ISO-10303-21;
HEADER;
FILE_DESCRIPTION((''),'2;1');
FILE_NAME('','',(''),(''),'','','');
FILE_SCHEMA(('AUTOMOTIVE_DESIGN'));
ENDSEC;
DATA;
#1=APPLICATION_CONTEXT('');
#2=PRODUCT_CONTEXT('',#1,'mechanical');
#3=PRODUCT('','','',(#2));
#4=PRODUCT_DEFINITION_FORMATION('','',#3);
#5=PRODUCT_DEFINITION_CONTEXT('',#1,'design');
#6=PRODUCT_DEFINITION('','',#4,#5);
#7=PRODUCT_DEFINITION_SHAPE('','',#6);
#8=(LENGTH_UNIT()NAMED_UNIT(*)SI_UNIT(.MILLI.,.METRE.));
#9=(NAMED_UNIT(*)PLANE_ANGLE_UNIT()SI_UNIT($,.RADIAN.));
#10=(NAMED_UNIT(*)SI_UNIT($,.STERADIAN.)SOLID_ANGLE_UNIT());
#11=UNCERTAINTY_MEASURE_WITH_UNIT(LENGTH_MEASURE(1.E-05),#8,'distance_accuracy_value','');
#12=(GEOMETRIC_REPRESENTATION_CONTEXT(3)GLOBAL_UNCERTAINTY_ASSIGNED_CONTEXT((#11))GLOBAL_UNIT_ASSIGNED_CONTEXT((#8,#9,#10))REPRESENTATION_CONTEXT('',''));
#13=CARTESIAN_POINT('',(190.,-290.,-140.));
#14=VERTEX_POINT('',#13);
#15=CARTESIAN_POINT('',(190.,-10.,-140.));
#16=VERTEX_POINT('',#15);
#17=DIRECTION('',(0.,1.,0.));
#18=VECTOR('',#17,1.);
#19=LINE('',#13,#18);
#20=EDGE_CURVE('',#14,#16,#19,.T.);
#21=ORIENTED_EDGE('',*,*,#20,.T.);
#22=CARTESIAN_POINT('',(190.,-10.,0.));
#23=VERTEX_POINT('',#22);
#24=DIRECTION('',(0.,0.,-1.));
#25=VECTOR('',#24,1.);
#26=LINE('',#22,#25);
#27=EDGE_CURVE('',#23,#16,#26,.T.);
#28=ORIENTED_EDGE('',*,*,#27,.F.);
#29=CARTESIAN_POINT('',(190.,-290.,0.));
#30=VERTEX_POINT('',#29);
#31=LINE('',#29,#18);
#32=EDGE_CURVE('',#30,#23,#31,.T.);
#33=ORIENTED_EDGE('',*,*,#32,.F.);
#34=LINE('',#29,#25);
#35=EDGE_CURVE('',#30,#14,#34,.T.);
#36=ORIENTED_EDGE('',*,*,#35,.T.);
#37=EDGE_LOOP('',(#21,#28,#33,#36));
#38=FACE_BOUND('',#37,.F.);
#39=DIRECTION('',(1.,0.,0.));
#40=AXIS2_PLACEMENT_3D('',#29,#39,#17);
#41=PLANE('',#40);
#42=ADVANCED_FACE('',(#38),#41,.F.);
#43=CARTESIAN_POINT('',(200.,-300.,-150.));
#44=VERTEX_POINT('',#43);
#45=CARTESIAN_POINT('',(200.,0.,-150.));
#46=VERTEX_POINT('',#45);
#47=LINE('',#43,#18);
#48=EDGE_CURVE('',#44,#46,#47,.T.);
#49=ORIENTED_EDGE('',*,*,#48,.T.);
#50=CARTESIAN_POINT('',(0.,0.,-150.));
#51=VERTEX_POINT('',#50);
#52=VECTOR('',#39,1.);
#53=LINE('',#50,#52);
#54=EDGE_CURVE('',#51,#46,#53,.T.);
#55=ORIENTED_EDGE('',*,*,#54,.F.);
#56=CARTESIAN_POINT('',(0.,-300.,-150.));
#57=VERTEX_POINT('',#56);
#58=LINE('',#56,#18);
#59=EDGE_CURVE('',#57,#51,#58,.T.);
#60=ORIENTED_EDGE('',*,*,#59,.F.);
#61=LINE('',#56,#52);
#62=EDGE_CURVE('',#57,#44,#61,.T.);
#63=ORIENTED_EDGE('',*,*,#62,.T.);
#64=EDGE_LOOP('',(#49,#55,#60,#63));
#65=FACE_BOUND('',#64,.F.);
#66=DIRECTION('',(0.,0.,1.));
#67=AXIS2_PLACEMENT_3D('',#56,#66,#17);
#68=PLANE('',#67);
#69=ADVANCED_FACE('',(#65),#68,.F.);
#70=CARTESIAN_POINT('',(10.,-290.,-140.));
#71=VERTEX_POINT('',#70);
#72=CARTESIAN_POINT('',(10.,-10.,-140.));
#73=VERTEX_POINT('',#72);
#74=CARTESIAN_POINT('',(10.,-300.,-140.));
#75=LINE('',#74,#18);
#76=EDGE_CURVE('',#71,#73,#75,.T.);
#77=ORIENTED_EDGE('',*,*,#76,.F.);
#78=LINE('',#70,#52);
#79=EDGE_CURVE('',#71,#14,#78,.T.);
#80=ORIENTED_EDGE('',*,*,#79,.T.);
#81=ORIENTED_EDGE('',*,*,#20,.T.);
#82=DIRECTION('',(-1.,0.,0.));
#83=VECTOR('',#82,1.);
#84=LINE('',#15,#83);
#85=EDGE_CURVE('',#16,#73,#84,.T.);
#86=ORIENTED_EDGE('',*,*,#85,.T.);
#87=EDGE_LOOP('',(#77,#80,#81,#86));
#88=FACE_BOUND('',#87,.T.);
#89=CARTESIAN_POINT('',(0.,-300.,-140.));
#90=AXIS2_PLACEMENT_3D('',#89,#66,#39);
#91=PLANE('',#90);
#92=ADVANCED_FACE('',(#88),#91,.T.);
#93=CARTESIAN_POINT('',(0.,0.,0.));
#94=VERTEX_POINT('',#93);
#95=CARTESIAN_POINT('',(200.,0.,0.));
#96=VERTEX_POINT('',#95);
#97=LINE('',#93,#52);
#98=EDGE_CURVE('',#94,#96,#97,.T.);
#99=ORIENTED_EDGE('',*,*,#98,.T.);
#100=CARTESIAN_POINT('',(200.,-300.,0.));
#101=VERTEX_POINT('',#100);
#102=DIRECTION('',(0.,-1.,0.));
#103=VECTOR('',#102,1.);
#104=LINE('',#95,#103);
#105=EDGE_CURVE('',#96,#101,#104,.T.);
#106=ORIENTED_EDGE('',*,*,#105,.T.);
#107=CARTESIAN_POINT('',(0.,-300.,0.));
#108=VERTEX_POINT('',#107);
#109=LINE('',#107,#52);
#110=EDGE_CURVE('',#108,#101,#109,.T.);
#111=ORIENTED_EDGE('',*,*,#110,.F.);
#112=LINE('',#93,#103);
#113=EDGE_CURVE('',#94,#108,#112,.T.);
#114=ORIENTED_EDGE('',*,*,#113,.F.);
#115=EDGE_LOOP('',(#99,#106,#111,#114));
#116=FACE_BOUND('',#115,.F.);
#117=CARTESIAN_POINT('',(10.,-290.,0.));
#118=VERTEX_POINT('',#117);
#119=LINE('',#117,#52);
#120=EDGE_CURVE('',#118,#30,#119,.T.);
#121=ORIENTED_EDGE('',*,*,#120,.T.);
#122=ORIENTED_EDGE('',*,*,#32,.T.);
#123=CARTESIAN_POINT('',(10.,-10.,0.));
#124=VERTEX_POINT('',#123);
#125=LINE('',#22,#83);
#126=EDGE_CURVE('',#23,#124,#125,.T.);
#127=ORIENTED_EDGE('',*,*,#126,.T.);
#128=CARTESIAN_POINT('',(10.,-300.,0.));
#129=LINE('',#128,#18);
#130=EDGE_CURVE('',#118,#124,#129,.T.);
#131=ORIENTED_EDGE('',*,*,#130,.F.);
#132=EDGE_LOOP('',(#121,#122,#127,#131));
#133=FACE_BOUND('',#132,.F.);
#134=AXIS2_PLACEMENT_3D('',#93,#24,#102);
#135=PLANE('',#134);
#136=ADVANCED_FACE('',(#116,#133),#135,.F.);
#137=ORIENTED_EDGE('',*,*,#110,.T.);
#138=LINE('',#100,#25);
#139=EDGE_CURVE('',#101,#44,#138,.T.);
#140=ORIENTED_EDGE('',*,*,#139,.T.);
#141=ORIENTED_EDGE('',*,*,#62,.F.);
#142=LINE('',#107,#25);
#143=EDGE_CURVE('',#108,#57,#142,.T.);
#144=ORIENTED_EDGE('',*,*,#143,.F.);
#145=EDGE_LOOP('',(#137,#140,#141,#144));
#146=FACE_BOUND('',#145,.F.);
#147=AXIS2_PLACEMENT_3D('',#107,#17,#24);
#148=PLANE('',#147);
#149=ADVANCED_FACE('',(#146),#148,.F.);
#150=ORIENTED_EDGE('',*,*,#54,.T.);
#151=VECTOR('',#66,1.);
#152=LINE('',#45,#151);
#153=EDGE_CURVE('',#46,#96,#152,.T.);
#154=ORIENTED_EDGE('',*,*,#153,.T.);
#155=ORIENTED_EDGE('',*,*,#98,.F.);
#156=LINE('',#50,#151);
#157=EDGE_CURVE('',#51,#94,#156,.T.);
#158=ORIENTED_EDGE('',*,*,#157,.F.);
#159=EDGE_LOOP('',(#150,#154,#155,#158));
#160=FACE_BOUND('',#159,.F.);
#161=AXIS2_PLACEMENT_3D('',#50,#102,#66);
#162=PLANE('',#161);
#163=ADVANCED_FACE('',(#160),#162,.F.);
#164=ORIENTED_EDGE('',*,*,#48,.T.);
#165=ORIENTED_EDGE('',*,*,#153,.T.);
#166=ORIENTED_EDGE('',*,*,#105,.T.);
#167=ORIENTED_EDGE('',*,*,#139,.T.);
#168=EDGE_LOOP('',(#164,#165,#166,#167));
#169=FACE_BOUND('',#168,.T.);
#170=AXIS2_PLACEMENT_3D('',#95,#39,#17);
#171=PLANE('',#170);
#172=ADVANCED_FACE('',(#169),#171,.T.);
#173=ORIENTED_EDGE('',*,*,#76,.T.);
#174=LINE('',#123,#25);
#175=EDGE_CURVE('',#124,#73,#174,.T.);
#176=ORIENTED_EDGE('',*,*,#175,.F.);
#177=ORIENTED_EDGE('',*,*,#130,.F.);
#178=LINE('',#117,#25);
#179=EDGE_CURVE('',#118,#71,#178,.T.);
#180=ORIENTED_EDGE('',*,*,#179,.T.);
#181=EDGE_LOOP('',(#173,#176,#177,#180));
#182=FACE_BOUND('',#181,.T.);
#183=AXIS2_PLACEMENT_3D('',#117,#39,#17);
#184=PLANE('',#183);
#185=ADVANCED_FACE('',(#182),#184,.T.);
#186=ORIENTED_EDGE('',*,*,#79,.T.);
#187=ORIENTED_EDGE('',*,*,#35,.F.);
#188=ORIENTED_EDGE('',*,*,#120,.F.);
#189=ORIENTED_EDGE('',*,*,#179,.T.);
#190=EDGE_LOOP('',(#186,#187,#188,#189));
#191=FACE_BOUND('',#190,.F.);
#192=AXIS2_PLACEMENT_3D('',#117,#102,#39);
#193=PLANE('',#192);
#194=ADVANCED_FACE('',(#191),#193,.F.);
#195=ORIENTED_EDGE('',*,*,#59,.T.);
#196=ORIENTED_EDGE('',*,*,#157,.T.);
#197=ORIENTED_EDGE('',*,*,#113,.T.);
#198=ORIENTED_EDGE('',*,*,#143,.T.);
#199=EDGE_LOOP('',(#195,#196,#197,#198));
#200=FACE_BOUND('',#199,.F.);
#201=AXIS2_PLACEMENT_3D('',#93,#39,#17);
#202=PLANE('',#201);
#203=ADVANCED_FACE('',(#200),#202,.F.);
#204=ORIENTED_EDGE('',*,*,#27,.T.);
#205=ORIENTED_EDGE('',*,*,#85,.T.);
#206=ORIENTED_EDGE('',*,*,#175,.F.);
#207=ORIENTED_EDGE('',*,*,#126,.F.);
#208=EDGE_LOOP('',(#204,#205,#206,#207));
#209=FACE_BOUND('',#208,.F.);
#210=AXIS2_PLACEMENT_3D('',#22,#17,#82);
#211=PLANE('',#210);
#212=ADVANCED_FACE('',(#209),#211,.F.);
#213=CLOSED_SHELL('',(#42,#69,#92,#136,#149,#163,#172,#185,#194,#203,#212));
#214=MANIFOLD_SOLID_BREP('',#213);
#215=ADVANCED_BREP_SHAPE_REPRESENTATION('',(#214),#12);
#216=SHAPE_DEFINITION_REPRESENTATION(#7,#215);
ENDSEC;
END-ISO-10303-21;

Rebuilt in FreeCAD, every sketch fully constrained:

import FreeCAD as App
import Part
import Sketcher
Q = App.Units.Quantity


def add_polygon(sketch, points):
    """Adds a closed chain of lines whose ends are joined by coincident constraints."""
    first, n = sketch.GeometryCount, len(points)
    for a, b in zip(points, points[1:] + points[:1]):
        sketch.addGeometry(Part.LineSegment(App.Vector(*a, 0), App.Vector(*b, 0)), False)
    for i in range(n):
        sketch.addConstraint(Sketcher.Constraint("Coincident", first + i, 2, first + (i + 1) % n, 1))

doc = App.newDocument("Part")
body = doc.addObject("PartDesign::Body", "Body")

# Sketch on YZ plane
sketch1 = body.newObject("Sketcher::SketchObject", "Sketch")
sketch1.AttachmentSupport = (doc.getObject("YZ_Plane"), [""])
sketch1.MapMode = "FlatFace"
add_polygon(sketch1, [(0, -150), (0, 0), (-300, 0), (-300, -150)])  # lines 0-3
sketch1.addConstraint([
    Sketcher.Constraint("Vertical", 0),
    Sketcher.Constraint("Horizontal", 1),
    Sketcher.Constraint("Vertical", 2),
    Sketcher.Constraint("Horizontal", 3),
    Sketcher.Constraint("Coincident", 0, 2, -1, 1),
    Sketcher.Constraint("DistanceX", 1, 2, 1, 1, Q("300 mm")),
    Sketcher.Constraint("DistanceY", 0, 1, 0, 2, Q("150 mm")),
])
pad1 = body.newObject("PartDesign::Pad", "Pad")
pad1.Profile = sketch1
pad1.Length = 200

# Sketch on XY plane
sketch2 = body.newObject("Sketcher::SketchObject", "Sketch001")
sketch2.AttachmentSupport = (doc.getObject("XY_Plane"), [""])
sketch2.MapMode = "FlatFace"
add_polygon(sketch2, [(10, -290), (190, -290), (190, -10), (10, -10)])  # lines 0-3
sketch2.addConstraint([
    Sketcher.Constraint("Horizontal", 0),
    Sketcher.Constraint("Vertical", 1),
    Sketcher.Constraint("Horizontal", 2),
    Sketcher.Constraint("Vertical", 3),
    Sketcher.Constraint("DistanceX", -1, 1, 0, 2, Q("190 mm")),
    Sketcher.Constraint("DistanceY", 0, 2, -1, 1, Q("290 mm")),
    Sketcher.Constraint("DistanceY", 1, 2, -1, 1, Q("10 mm")),
    Sketcher.Constraint("DistanceX", -1, 1, 2, 2, Q("10 mm")),
])
pocket1 = body.newObject("PartDesign::Pocket", "Pocket")
pocket1.Profile = sketch2
pocket1.Length = 140

# Sketch on XY plane
sketch3 = body.newObject("Sketcher::SketchObject", "Sketch002")
sketch3.AttachmentSupport = (doc.getObject("XY_Plane"), [""])
sketch3.MapMode = "FlatFace"
sketch3.AttachmentOffset = App.Placement(App.Vector(0, 0, -150), App.Rotation())
add_polygon(sketch3, [(30, -25), (70, -25), (70, -125), (30, -125)])  # lines 0-3
sketch3.addConstraint([
    Sketcher.Constraint("Horizontal", 0),
    Sketcher.Constraint("Vertical", 1),
    Sketcher.Constraint("Horizontal", 2),
    Sketcher.Constraint("Vertical", 3),
    Sketcher.Constraint("DistanceX", 0, 1, 0, 2, Q("40 mm")),
    Sketcher.Constraint("DistanceY", 1, 2, 1, 1, Q("100 mm")),
    Sketcher.Constraint("DistanceX", -1, 1, 0, 2, Q("70 mm")),
    Sketcher.Constraint("DistanceY", 0, 2, -1, 1, Q("25 mm")),
])
pocket2 = body.newObject("PartDesign::Pocket", "Pocket001")
pocket2.Profile = sketch3
pocket2.Length = 50
pocket2.Reversed = True

# Sketch on XY plane
sketch4 = body.newObject("Sketcher::SketchObject", "Sketch003")
sketch4.AttachmentSupport = (doc.getObject("XY_Plane"), [""])
sketch4.MapMode = "FlatFace"
sketch4.AttachmentOffset = App.Placement(App.Vector(0, 0, -150), App.Rotation())
add_polygon(sketch4, [(34.3985, -275), (34.3985, -175), (74.3985, -175), (74.3985, -275)])  # lines 0-3
add_polygon(sketch4, [(170, -25), (170, -125), (130, -125), (130, -25)])  # lines 4-7
add_polygon(sketch4, [(130, -275), (130, -175), (170, -175), (170, -275)])  # lines 8-11
sketch4.addConstraint([
    Sketcher.Constraint("Vertical", 0),
    Sketcher.Constraint("Horizontal", 1),
    Sketcher.Constraint("Vertical", 2),
    Sketcher.Constraint("Horizontal", 3),
    Sketcher.Constraint("Vertical", 4),
    Sketcher.Constraint("Horizontal", 5),
    Sketcher.Constraint("Vertical", 6),
    Sketcher.Constraint("Horizontal", 7),
    Sketcher.Constraint("Vertical", 8),
    Sketcher.Constraint("Horizontal", 9),
    Sketcher.Constraint("Vertical", 10),
    Sketcher.Constraint("Horizontal", 11),
    Sketcher.Constraint("Horizontal", 1, 2, 8, 2),
    Sketcher.Constraint("Horizontal", 3, 2, 10, 2),
    Sketcher.Constraint("Vertical", 6, 2, 8, 2),
    Sketcher.Constraint("Vertical", 7, 2, 9, 2),
    Sketcher.Constraint("Equal", 3, 5),
    Sketcher.Constraint("Equal", 2, 4),
    Sketcher.Constraint("DistanceX", 1, 1, 1, 2, Q("40 mm")),
    Sketcher.Constraint("DistanceY", 0, 1, 0, 2, Q("100 mm")),
    Sketcher.Constraint("DistanceY", 1, 2, 4, 2, Q("50 mm")),
    Sketcher.Constraint("DistanceY", 0, 2, -1, 1, Q("175 mm")),
    Sketcher.Constraint("DistanceX", -1, 1, 4, 2, Q("170 mm")),
    Sketcher.Constraint("DistanceX", -1, 1, 0, 2, Q("34.3985 mm")),
])
pocket3 = body.newObject("PartDesign::Pocket", "Pocket002")
pocket3.Profile = sketch4
pocket3.Length = 50
pocket3.Reversed = True

# Sketch on XY plane
sketch5 = body.newObject("Sketcher::SketchObject", "Sketch004")
sketch5.AttachmentSupport = (doc.getObject("XY_Plane"), [""])
sketch5.MapMode = "FlatFace"
sketch5.AttachmentOffset = App.Placement(App.Vector(0, 0, -150), App.Rotation())
add_polygon(sketch5, [(30, -125), (30, -25), (70, -25), (70, -125)])  # lines 0-3
add_polygon(sketch5, [(130, -125), (130, -25), (170, -25), (170, -125)])  # lines 4-7
add_polygon(sketch5, [(74.3985, -275), (34.3985, -275), (34.3985, -175), (74.3985, -175)])  # lines 8-11
add_polygon(sketch5, [(130, -275), (130, -175), (170, -175), (170, -275)])  # lines 12-15
sketch5.addConstraint([
    Sketcher.Constraint("Vertical", 0),
    Sketcher.Constraint("Horizontal", 1),
    Sketcher.Constraint("Vertical", 2),
    Sketcher.Constraint("Horizontal", 3),
    Sketcher.Constraint("Vertical", 4),
    Sketcher.Constraint("Horizontal", 5),
    Sketcher.Constraint("Vertical", 6),
    Sketcher.Constraint("Horizontal", 7),
    Sketcher.Constraint("Horizontal", 8),
    Sketcher.Constraint("Vertical", 9),
    Sketcher.Constraint("Horizontal", 10),
    Sketcher.Constraint("Vertical", 11),
    Sketcher.Constraint("Vertical", 12),
    Sketcher.Constraint("Horizontal", 13),
    Sketcher.Constraint("Vertical", 14),
    Sketcher.Constraint("Horizontal", 15),
    Sketcher.Constraint("Horizontal", 1, 2, 4, 2),
    Sketcher.Constraint("Horizontal", 3, 2, 6, 2),
    Sketcher.Constraint("Horizontal", 10, 2, 12, 2),
    Sketcher.Constraint("Horizontal", 11, 2, 14, 2),
    Sketcher.Constraint("Vertical", 7, 2, 12, 2),
    Sketcher.Constraint("Vertical", 6, 2, 13, 2),
    Sketcher.Constraint("Equal", 3, 5),
    Sketcher.Constraint("Equal", 7, 8),
    Sketcher.Constraint("Equal", 6, 9),
    Sketcher.Constraint("DistanceY", 0, 1, 0, 2, Q("100 mm")),
    Sketcher.Constraint("DistanceX", 0, 2, 4, 2, Q("100 mm")),
    Sketcher.Constraint("DistanceX", 1, 1, 1, 2, Q("40 mm")),
    Sketcher.Constraint("DistanceX", -1, 1, 0, 2, Q("30 mm")),
    Sketcher.Constraint("DistanceY", 0, 2, -1, 1, Q("25 mm")),
    Sketcher.Constraint("DistanceY", 8, 2, -1, 1, Q("275 mm")),
    Sketcher.Constraint("DistanceX", -1, 1, 8, 2, Q("34.3985 mm")),
])
pad2 = body.newObject("PartDesign::Pad", "Pad001")
pad2.Profile = sketch5
pad2.Length = 10

doc.recompute()
